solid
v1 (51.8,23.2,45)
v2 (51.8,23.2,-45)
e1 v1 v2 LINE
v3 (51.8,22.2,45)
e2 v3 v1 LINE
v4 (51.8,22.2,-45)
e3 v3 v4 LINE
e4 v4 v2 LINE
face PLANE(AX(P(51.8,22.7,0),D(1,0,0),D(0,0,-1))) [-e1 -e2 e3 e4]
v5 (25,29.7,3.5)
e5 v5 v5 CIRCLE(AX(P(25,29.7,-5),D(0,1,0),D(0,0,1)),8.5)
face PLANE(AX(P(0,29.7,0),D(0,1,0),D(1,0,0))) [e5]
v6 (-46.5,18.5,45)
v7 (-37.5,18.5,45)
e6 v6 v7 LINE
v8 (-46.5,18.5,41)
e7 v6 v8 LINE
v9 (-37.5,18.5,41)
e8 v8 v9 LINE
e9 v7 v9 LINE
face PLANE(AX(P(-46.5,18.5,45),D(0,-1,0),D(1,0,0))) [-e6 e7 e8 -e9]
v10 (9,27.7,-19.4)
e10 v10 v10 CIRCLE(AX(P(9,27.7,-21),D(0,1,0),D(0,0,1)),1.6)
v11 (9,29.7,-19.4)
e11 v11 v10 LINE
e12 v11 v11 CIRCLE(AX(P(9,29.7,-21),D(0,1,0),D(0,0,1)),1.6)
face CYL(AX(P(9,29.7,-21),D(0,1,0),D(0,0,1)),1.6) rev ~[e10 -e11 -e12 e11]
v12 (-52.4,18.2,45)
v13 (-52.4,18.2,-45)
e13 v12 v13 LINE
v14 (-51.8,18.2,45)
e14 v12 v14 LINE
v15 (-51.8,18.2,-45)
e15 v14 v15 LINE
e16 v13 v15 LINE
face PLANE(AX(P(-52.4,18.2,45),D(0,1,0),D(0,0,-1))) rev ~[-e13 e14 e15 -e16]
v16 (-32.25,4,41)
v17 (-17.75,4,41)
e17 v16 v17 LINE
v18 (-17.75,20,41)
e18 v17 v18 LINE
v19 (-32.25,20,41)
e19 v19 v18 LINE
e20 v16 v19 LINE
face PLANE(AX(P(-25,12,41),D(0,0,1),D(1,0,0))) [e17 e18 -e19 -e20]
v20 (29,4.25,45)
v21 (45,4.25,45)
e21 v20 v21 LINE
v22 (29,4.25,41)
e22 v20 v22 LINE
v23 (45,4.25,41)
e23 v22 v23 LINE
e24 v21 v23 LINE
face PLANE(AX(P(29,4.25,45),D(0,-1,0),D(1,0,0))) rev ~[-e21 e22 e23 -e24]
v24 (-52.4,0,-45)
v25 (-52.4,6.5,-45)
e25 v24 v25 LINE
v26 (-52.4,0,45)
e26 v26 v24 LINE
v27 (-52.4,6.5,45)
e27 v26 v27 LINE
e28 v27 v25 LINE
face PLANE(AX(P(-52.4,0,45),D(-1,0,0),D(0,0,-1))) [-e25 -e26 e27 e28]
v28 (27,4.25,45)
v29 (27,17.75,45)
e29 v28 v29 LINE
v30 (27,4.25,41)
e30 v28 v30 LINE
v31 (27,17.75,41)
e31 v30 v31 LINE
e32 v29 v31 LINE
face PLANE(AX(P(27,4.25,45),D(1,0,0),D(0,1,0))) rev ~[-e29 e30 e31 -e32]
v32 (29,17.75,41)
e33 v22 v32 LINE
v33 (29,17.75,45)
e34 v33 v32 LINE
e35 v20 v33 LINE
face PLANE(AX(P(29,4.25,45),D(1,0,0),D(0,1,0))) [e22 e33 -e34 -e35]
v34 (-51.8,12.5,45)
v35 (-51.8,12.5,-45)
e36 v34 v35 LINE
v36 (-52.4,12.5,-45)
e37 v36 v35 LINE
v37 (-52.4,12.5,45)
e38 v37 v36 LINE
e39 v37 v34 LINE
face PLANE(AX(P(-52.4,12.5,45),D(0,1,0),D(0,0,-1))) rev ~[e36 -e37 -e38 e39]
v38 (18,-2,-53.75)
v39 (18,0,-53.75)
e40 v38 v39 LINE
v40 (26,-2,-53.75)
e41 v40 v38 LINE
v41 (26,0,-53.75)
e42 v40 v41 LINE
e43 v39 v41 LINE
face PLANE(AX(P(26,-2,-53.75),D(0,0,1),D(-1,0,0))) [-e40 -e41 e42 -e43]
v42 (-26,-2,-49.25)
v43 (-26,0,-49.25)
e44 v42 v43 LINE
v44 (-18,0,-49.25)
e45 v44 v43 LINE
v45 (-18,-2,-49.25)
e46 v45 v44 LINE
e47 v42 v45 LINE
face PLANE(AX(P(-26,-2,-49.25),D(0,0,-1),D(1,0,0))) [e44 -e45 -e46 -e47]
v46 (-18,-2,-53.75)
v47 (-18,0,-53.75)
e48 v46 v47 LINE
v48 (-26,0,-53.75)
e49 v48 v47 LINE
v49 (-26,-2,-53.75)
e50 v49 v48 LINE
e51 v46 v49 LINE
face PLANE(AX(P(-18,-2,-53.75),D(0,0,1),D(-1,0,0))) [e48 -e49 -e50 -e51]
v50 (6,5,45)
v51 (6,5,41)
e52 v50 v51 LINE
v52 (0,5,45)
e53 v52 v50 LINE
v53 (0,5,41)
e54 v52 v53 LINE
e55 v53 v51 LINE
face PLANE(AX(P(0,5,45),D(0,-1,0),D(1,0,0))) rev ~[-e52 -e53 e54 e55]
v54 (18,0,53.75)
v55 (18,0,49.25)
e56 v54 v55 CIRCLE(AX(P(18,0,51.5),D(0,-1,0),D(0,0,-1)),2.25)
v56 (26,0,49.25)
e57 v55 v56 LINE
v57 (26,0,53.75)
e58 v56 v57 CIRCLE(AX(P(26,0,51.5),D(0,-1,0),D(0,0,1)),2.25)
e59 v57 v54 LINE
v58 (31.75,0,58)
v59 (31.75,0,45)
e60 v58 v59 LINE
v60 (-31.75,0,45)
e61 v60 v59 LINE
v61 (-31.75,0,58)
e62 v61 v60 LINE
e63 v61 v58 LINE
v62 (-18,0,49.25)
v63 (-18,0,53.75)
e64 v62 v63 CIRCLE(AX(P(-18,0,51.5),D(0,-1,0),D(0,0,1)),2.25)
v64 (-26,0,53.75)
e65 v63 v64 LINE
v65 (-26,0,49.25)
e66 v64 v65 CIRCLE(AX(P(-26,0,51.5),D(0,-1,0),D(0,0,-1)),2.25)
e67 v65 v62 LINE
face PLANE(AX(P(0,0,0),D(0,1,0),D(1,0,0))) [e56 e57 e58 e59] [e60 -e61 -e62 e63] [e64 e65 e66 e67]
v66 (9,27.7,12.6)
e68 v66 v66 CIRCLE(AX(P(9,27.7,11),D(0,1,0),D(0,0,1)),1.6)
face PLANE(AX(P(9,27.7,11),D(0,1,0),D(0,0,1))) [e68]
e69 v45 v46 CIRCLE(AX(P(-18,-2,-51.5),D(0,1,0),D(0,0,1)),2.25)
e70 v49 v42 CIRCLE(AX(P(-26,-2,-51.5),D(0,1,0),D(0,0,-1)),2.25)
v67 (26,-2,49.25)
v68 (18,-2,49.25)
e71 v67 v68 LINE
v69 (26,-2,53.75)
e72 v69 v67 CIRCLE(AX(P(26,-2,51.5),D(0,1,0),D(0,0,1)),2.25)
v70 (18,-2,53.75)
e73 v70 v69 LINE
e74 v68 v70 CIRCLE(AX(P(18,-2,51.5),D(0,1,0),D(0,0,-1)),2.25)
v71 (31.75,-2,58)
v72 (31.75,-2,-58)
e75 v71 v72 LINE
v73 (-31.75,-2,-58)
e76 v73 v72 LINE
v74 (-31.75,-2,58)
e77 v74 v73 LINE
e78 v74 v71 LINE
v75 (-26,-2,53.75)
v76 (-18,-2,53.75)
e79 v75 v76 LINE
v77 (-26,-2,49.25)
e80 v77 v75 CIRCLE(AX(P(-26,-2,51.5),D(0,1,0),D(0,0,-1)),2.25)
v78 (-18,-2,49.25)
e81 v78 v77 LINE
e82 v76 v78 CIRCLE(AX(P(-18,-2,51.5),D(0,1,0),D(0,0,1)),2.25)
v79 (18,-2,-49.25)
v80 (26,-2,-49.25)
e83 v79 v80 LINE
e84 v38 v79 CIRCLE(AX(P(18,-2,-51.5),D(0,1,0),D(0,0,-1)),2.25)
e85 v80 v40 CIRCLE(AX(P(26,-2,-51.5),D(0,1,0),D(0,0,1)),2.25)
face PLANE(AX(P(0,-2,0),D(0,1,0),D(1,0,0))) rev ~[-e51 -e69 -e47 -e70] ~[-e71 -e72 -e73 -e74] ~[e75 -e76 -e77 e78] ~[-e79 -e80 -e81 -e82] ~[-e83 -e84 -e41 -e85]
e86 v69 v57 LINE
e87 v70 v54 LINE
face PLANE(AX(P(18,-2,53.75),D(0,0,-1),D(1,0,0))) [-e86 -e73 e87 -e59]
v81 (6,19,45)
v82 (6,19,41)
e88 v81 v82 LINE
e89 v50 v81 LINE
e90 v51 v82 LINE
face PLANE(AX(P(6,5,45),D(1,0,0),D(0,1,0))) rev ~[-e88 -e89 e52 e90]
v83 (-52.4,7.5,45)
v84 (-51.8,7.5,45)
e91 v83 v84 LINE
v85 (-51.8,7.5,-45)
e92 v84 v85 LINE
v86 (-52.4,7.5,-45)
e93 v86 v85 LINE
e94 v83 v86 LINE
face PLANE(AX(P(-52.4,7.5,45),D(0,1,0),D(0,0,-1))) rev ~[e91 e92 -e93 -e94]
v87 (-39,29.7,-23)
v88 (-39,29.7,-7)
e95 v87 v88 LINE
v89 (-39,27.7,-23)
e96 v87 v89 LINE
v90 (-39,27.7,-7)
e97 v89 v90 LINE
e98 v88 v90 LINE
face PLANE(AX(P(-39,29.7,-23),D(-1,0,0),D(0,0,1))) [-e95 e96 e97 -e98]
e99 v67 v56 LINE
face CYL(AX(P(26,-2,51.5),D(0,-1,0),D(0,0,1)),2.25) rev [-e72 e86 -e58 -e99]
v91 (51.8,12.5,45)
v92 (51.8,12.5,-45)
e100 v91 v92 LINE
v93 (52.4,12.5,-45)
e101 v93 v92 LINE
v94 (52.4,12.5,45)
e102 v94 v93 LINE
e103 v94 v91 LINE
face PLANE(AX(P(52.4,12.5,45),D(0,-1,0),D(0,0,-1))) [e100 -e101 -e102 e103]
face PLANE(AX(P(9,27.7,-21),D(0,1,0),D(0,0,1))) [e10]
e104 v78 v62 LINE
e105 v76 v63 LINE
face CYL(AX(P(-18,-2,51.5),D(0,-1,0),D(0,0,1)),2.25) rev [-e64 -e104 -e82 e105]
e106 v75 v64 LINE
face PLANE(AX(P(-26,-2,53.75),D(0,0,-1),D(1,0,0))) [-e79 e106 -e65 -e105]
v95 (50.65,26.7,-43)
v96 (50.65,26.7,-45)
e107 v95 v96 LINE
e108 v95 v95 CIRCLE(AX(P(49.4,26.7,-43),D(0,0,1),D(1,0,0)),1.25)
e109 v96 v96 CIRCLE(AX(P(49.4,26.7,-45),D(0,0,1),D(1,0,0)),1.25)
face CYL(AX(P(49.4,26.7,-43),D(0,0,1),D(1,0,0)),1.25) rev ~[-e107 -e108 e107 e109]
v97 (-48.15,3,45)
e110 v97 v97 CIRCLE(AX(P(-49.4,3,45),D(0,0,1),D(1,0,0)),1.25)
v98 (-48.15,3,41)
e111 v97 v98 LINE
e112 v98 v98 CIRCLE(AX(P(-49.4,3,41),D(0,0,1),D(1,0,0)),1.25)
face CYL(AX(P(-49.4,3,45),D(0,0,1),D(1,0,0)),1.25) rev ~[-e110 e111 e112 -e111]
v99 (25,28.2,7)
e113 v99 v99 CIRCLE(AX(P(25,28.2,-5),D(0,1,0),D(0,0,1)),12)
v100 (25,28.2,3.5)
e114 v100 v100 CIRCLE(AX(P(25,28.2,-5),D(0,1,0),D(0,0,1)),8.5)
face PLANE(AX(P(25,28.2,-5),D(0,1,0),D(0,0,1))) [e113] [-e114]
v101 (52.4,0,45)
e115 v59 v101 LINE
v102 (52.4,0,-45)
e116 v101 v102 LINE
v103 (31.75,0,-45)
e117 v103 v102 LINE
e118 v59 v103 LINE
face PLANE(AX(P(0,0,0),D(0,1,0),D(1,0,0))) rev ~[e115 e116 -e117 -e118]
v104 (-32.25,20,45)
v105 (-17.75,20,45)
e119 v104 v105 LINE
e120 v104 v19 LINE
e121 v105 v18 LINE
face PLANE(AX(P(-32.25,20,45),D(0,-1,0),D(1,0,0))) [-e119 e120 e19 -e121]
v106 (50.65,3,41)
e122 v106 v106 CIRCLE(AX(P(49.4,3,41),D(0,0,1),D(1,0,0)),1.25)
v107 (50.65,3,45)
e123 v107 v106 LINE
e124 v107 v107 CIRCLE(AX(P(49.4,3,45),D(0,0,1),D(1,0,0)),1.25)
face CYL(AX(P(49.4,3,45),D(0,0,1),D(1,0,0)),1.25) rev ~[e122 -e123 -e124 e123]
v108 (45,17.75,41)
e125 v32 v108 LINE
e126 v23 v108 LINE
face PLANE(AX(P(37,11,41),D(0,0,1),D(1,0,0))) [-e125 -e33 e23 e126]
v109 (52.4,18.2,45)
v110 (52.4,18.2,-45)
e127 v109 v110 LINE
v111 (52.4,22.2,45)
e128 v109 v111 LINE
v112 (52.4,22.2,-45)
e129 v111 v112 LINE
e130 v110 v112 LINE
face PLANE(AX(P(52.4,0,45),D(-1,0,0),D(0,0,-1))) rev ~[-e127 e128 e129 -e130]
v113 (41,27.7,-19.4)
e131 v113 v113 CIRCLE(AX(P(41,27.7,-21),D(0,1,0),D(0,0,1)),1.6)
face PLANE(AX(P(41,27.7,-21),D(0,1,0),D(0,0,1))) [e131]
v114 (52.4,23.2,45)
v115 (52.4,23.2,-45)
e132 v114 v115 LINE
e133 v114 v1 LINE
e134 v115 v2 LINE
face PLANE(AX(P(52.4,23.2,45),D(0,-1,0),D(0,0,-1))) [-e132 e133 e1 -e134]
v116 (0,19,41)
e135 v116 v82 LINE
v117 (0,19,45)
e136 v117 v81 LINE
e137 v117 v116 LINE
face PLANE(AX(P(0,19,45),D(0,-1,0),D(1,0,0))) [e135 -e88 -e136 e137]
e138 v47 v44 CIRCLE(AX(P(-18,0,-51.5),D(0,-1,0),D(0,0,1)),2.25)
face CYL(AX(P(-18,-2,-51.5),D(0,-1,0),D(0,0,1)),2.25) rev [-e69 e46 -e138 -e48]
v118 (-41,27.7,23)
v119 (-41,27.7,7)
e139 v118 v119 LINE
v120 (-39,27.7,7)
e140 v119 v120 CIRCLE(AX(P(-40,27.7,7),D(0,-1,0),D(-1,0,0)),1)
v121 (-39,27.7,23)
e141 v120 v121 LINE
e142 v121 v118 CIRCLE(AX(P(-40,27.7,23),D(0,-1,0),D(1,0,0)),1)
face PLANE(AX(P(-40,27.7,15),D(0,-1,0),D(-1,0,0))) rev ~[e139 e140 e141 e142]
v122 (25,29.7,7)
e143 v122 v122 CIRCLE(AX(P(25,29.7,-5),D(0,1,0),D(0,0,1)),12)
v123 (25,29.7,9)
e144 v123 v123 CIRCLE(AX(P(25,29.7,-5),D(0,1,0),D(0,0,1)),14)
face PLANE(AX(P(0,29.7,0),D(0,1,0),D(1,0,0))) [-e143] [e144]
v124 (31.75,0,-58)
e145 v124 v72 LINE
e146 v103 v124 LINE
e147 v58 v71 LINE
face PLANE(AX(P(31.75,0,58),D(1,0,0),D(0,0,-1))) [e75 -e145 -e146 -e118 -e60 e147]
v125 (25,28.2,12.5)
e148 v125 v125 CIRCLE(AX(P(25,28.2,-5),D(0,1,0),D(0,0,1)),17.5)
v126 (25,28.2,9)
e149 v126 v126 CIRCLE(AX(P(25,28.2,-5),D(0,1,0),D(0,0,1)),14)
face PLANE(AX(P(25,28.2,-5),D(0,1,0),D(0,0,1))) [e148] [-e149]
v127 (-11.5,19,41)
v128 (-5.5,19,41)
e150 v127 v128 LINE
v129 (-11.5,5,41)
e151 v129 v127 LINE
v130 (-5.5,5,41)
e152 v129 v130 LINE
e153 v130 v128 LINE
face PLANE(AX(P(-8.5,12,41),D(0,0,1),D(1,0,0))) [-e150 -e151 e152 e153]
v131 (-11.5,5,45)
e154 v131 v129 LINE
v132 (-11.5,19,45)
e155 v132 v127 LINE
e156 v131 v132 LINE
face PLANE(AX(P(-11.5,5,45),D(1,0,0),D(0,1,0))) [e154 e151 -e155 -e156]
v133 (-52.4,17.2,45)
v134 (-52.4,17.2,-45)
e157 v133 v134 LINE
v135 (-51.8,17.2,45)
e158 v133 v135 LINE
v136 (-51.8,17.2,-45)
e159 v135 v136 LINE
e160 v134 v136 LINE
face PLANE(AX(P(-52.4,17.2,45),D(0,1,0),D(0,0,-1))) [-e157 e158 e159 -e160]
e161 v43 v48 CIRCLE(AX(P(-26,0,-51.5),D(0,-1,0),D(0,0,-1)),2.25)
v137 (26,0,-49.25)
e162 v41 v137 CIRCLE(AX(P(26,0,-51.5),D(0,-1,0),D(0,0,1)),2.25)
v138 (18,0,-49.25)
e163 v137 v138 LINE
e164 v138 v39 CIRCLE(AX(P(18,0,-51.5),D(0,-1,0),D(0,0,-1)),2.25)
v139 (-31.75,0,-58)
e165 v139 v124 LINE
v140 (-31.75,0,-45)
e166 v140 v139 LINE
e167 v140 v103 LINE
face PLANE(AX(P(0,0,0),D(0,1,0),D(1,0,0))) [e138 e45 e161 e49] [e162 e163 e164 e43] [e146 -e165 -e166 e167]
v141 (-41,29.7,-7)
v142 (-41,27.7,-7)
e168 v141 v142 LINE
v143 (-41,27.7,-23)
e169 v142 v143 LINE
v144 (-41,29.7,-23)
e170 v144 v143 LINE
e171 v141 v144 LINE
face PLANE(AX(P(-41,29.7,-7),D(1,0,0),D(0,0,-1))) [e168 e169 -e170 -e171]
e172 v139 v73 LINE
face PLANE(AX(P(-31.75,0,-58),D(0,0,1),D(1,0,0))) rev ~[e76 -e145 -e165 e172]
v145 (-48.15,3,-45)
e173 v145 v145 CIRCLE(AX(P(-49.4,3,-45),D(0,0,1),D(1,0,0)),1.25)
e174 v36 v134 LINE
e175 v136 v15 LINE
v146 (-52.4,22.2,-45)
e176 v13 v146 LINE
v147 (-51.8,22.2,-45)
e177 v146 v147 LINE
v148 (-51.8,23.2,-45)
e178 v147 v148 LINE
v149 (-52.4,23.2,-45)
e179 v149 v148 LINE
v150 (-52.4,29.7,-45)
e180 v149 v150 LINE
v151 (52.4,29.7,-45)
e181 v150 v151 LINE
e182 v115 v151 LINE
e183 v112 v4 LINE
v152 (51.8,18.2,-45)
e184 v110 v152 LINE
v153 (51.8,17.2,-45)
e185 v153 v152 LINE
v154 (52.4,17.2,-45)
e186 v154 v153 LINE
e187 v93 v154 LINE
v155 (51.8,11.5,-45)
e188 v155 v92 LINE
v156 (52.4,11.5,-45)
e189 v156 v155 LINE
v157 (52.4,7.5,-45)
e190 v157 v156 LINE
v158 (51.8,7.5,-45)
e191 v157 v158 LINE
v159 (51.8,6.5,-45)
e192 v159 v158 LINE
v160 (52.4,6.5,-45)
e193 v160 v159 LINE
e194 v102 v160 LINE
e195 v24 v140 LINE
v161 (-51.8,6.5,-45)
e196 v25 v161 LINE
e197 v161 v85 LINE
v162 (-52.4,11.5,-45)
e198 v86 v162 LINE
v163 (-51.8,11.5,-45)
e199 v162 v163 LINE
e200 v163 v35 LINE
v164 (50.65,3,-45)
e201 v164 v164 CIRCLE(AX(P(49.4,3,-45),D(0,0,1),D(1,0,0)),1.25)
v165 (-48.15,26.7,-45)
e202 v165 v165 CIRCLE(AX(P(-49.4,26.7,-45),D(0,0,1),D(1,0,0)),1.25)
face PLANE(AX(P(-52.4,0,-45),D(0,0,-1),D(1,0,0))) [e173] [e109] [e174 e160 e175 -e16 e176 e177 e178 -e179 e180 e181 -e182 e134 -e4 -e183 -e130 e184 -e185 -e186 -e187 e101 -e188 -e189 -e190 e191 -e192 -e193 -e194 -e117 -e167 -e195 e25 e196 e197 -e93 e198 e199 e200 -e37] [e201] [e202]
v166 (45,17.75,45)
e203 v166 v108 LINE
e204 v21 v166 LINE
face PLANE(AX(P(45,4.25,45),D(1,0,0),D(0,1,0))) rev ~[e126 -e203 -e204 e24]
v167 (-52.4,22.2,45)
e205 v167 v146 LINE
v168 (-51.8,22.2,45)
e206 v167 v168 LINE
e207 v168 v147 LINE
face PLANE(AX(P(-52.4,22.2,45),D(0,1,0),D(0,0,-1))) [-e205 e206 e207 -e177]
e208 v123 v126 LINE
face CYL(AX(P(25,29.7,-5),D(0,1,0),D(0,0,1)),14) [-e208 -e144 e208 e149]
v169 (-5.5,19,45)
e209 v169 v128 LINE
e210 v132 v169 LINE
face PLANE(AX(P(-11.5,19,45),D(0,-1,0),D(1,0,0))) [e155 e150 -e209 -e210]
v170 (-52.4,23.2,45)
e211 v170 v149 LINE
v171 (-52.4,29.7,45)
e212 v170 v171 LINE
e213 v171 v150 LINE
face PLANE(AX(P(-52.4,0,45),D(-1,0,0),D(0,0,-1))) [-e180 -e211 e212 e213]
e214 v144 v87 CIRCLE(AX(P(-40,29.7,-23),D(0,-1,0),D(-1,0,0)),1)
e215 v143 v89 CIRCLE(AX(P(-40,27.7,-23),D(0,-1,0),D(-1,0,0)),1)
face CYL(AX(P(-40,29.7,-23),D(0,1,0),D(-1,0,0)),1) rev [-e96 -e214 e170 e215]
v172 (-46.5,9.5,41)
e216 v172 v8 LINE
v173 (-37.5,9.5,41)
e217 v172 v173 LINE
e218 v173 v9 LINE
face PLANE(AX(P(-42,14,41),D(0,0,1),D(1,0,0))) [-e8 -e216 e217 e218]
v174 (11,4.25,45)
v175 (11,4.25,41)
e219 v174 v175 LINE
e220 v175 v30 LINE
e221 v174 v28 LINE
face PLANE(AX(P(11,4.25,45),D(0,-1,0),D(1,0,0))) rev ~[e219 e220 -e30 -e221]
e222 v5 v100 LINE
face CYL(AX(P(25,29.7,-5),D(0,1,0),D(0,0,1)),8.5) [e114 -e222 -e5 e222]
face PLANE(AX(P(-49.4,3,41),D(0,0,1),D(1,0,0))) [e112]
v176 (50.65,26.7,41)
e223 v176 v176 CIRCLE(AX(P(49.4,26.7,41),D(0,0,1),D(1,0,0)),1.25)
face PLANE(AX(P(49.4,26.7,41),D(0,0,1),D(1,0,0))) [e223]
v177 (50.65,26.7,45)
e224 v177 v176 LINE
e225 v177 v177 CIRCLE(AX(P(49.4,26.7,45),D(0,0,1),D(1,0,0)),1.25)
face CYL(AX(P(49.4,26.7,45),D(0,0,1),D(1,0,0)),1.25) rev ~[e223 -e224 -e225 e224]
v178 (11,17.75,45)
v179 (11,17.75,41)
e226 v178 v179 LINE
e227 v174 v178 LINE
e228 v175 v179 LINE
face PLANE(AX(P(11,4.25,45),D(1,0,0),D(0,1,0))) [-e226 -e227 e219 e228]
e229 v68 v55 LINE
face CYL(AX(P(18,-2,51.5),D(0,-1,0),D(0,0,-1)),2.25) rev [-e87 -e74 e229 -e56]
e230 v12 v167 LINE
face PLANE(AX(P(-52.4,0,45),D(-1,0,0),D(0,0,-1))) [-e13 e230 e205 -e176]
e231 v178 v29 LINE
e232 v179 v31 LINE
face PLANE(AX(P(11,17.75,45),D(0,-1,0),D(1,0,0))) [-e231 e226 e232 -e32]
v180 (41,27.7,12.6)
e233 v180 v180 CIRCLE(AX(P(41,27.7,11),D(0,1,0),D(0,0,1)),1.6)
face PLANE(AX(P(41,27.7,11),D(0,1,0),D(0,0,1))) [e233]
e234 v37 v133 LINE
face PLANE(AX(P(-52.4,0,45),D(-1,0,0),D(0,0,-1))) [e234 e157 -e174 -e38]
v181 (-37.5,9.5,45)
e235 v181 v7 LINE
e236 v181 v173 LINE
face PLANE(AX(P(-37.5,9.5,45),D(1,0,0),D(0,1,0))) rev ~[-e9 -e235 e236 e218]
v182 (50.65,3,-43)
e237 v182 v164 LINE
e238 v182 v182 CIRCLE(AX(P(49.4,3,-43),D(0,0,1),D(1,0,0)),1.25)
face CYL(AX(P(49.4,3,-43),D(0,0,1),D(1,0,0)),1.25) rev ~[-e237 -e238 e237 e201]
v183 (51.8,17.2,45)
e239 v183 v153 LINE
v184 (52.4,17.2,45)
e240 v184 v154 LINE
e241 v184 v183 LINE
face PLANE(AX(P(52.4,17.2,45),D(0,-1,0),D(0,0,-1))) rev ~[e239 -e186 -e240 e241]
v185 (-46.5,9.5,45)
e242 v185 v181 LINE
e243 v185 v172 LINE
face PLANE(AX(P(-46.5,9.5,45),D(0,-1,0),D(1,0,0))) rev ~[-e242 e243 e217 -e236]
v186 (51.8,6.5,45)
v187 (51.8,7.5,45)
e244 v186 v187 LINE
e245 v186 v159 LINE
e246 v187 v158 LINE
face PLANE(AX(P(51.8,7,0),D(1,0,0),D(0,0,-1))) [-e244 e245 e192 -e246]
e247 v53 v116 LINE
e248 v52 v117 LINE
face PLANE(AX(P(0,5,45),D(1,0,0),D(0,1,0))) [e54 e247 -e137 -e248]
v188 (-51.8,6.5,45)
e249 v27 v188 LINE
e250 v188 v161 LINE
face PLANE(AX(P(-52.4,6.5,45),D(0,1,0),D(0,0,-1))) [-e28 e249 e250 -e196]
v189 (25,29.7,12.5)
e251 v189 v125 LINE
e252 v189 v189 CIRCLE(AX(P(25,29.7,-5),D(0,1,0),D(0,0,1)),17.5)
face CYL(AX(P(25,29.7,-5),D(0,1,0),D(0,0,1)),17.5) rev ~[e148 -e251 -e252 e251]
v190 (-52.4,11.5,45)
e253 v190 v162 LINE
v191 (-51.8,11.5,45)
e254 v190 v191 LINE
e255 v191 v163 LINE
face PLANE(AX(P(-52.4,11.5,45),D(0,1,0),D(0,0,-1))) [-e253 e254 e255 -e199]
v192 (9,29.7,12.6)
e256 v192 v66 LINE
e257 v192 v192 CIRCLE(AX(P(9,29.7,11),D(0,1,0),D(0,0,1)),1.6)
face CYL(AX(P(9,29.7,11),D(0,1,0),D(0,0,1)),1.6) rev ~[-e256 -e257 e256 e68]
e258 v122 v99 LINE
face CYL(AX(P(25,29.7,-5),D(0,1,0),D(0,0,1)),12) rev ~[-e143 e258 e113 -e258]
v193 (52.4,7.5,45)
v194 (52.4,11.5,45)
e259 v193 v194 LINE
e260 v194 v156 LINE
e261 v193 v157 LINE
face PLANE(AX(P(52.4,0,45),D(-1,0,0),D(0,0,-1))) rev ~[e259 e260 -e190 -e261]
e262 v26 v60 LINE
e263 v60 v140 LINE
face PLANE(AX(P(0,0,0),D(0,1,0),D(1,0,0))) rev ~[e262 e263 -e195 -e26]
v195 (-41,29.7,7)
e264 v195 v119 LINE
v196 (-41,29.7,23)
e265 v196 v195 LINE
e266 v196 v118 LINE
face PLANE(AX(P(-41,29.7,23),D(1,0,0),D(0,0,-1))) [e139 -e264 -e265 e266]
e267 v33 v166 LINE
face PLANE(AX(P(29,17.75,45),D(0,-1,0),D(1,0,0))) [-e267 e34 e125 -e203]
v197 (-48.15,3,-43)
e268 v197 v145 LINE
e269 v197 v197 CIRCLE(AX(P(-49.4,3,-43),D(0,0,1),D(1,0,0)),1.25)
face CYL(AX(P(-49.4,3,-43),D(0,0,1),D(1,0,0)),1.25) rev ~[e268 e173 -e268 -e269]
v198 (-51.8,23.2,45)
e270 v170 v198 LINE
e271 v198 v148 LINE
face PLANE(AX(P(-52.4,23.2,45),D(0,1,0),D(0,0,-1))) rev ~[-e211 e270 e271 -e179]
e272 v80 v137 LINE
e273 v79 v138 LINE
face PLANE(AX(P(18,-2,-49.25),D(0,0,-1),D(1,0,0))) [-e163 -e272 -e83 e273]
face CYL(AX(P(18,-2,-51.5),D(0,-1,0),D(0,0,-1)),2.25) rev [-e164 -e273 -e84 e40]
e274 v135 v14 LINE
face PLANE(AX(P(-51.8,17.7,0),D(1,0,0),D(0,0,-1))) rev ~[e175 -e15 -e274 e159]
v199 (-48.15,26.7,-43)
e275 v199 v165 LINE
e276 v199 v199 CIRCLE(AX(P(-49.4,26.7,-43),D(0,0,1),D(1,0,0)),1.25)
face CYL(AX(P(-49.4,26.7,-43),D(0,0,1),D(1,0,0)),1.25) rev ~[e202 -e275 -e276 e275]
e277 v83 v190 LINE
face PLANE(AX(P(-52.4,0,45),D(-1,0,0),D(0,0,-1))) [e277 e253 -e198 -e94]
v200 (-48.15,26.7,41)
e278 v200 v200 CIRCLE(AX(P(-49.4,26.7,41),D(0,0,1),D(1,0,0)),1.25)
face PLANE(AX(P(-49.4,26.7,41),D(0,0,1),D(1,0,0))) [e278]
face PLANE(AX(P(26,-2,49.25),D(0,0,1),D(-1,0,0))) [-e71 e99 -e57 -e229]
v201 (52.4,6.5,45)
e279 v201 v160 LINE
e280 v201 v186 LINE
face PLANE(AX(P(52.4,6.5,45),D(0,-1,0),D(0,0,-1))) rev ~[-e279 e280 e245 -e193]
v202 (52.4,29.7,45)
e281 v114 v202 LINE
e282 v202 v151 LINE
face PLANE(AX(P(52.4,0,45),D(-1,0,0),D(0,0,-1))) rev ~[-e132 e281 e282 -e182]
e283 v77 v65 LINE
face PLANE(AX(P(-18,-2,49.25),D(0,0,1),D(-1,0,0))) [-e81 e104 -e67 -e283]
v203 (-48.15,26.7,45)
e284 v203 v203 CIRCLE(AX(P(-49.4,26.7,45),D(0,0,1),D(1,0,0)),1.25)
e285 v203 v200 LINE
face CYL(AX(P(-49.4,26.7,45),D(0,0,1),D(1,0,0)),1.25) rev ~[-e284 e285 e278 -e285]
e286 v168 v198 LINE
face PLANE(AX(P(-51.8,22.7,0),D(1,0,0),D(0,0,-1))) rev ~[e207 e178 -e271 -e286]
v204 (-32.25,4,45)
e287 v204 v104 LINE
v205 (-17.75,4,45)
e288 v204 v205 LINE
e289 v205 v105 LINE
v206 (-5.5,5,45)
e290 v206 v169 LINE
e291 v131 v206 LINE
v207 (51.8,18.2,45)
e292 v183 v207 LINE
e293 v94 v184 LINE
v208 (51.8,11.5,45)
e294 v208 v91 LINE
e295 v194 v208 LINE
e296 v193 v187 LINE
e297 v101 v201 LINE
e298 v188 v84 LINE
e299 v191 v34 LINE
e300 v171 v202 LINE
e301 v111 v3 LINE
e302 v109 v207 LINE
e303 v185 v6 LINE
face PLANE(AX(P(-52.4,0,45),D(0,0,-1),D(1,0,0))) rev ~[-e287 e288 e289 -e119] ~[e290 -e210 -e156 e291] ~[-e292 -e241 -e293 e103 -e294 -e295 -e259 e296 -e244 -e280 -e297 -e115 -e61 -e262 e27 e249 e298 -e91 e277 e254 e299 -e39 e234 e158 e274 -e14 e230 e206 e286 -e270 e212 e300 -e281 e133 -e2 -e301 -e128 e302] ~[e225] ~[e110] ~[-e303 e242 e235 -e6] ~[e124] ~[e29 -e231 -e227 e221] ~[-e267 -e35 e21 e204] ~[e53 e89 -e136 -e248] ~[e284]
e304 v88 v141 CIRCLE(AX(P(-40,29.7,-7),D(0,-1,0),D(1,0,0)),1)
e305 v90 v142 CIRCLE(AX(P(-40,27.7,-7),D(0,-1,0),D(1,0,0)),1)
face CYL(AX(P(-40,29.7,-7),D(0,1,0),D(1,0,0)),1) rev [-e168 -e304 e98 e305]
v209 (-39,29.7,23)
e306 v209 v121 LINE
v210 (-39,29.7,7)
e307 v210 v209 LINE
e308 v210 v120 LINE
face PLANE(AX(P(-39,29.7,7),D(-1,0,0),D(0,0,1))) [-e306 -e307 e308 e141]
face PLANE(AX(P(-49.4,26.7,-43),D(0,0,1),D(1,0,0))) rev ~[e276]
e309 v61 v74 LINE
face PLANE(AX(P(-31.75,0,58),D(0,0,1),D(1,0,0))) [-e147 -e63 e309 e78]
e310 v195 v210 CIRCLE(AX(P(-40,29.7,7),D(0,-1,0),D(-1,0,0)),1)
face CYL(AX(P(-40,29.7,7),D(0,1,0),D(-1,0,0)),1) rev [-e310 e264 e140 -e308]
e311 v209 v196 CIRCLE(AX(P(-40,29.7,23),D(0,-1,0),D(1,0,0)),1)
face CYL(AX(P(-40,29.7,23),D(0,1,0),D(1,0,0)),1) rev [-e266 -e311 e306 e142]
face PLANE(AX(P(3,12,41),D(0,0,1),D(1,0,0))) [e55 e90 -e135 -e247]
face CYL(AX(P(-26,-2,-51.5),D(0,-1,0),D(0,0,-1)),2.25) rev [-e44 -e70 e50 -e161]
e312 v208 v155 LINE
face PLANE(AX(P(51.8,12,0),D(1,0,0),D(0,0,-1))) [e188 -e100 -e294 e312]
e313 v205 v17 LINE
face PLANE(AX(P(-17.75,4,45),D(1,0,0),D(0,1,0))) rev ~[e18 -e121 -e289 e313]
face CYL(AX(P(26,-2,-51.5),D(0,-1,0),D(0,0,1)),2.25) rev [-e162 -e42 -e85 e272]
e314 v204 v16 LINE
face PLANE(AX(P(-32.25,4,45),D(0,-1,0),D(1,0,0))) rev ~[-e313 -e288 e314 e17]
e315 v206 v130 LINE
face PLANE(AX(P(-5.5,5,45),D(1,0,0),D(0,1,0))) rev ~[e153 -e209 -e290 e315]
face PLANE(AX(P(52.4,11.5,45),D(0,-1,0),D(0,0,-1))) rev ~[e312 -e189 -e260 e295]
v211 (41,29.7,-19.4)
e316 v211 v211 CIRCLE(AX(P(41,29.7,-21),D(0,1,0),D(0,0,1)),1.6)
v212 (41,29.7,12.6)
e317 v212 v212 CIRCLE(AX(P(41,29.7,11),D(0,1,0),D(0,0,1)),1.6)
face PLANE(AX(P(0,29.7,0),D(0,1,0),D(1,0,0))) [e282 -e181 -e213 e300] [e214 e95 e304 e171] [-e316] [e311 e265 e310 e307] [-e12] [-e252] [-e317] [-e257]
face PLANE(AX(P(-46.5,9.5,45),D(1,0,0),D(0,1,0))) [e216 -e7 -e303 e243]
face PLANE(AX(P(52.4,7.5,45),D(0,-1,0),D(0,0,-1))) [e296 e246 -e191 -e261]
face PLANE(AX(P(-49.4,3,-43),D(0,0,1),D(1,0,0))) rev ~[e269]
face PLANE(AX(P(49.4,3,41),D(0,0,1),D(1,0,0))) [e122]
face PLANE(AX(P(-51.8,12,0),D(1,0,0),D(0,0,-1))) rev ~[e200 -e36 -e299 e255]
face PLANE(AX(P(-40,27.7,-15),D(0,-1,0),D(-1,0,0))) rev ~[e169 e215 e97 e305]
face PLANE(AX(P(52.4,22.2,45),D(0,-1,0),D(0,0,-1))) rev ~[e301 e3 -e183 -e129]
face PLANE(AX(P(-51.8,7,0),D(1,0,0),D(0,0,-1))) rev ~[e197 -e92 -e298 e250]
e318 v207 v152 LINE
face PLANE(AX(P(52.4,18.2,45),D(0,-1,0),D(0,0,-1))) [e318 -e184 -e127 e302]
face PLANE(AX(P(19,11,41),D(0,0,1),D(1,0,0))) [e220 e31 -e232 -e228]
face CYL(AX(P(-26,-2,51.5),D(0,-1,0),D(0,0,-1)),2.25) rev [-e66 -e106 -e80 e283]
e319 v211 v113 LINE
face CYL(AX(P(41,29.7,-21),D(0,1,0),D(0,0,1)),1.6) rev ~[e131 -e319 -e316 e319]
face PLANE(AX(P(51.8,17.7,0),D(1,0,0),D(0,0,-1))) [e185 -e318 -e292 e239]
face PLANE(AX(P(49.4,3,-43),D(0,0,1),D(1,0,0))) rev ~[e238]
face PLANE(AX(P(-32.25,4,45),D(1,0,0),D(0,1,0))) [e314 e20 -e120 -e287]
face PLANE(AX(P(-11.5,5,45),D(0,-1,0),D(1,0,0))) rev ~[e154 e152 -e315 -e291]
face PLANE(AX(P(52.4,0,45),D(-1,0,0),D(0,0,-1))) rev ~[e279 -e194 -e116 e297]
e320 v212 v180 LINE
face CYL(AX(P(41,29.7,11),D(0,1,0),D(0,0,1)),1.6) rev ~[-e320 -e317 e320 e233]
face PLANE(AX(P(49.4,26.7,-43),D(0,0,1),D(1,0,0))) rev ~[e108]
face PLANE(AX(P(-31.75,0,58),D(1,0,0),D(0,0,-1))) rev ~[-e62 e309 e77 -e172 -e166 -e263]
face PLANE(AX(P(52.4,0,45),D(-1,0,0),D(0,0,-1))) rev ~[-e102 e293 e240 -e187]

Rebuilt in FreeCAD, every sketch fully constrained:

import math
import FreeCAD as App
import Part
import Sketcher
Q = App.Units.Quantity


def add_polygon(sketch, points):
    """Adds a closed chain of lines whose ends are joined by coincident constraints."""
    first, n = sketch.GeometryCount, len(points)
    for a, b in zip(points, points[1:] + points[:1]):
        sketch.addGeometry(Part.LineSegment(App.Vector(*a, 0), App.Vector(*b, 0)), False)
    for i in range(n):
        sketch.addConstraint(Sketcher.Constraint("Coincident", first + i, 2, first + (i + 1) % n, 1))

doc = App.newDocument("Part")
params = doc.addObject("Spreadsheet::Sheet", "Params")
for row, (alias, value) in enumerate([
    ("sketch1_height", "90 mm"),
    ("sketch1_width", "104.8 mm"),
    ("pad1_length", "29.7 mm"),
    ("sketch2_height", "116 mm"),
    ("sketch2_width", "63.5 mm"),
    ("pad2_length", "2 mm"),
    ("sketch3_width", "8 mm"),
    ("sketch3_radius", "2.25 mm"),
    ("pocket1_length", "3 mm"),
    ("sketch4_diameter", "2.5 mm"),
    ("sketch4_width", "9 mm"),
    ("sketch4_width2", "6 mm"),
    ("sketch4_width3", "16 mm"),
    ("sketch4_height", "14 mm"),
    ("pocket2_length", "4 mm"),
    ("sketch5_diameter", "2.5 mm"),
    ("pocket3_length", "2 mm"),
    ("sketch6_diameter", "35 mm"),
    ("sketch6_diameter2", "28 mm"),
    ("pocket4_length", "1.5 mm"),
    ("sketch7_diameter", "24 mm"),
    ("sketch7_diameter2", "17 mm"),
    ("pocket5_length", "1.5 mm"),
    ("sketch8_radius", "1 mm"),
    ("sketch8_diameter", "3.2 mm"),
    ("sketch8_height", "16 mm"),
    ("pocket6_length", "2 mm"),
    ("sketch9_width", "1 mm"),
    ("sketch9_height", "90 mm"),
    ("pocket7_length", "0.6 mm"),
    ("sketch10_width", "1 mm"),
    ("sketch10_height", "90 mm"),
    ("pocket8_length", "0.6 mm"),
], start=1):
    params.set(f"A{row}", alias)
    params.set(f"B{row}", "=" + value)
    params.setAlias(f"B{row}", alias)

body = doc.addObject("PartDesign::Body", "Body")

# Sketch on XZ plane
sketch1 = doc.addObject("Sketcher::SketchObject", "Sketch")
body.addObject(sketch1)
sketch1.AttachmentSupport = (doc.XZ_Plane, [""])
sketch1.MapMode = "FlatFace"
add_polygon(sketch1, [(-52, -45), (-52, 45), (52, 45), (52, -45)])  # lines 0-3
sketch1.addConstraint([
    Sketcher.Constraint("Vertical", 0),
    Sketcher.Constraint("Horizontal", 1),
    Sketcher.Constraint("Vertical", 2),
    Sketcher.Constraint("Horizontal", 3),
    Sketcher.Constraint("Symmetric", 0, 2, 2, 2, -1, 1),
    Sketcher.Constraint("DistanceY", 0, 1, 0, 2, Q("90 mm")),
    Sketcher.Constraint("DistanceX", 1, 1, 1, 2, Q("104.8 mm")),
])
sketch1.setExpression("Constraints[9]", "Params.sketch1_height")
sketch1.setExpression("Constraints[10]", "Params.sketch1_width")
pad1 = doc.addObject("PartDesign::Pad", "Pad")
body.addObject(pad1)
pad1.Profile = sketch1
pad1.setExpression("Length", "Params.pad1_length")
pad1.Reversed = True

# Sketch on XZ plane
sketch2 = doc.addObject("Sketcher::SketchObject", "Sketch001")
body.addObject(sketch2)
sketch2.AttachmentSupport = (doc.XZ_Plane, [""])
sketch2.MapMode = "FlatFace"
add_polygon(sketch2, [(-32, -58), (-32, 58), (32, 58), (32, -58)])  # lines 0-3
sketch2.addConstraint([
    Sketcher.Constraint("Vertical", 0),
    Sketcher.Constraint("Horizontal", 1),
    Sketcher.Constraint("Vertical", 2),
    Sketcher.Constraint("Horizontal", 3),
    Sketcher.Constraint("Symmetric", 0, 2, 2, 2, -1, 1),
    Sketcher.Constraint("DistanceY", 0, 1, 0, 2, Q("116 mm")),
    Sketcher.Constraint("DistanceX", 1, 1, 1, 2, Q("63.5 mm")),
])
sketch2.setExpression("Constraints[9]", "Params.sketch2_height")
sketch2.setExpression("Constraints[10]", "Params.sketch2_width")
pad2 = doc.addObject("PartDesign::Pad", "Pad001")
body.addObject(pad2)
pad2.Profile = sketch2
pad2.setExpression("Length", "Params.pad2_length")

# Sketch on XZ plane
sketch3 = doc.addObject("Sketcher::SketchObject", "Sketch002")
body.addObject(sketch3)
sketch3.AttachmentSupport = (doc.XZ_Plane, [""])
sketch3.MapMode = "FlatFace"
sketch3.AttachmentOffset = App.Placement(App.Vector(0, 0, 2), App.Rotation())
sketch3.addGeometry([
    Part.LineSegment(App.Vector(26, 53.8, 0), App.Vector(18, 53.8, 0)),  # 0
    Part.ArcOfCircle(Part.Circle(App.Vector(18, 51.5, 0), App.Vector(0, 0, 1), 2.2), math.radians(90), math.radians(270)),  # 1
    Part.LineSegment(App.Vector(18, 49.2, 0), App.Vector(26, 49.2, 0)),  # 2
    Part.ArcOfCircle(Part.Circle(App.Vector(26, 51.5, 0), App.Vector(0, 0, 1), 2.2), math.radians(-90), math.radians(90)),  # 3
    Part.LineSegment(App.Vector(-18, 53.8, 0), App.Vector(-26, 53.8, 0)),  # 4
    Part.ArcOfCircle(Part.Circle(App.Vector(-26, 51.5, 0), App.Vector(0, 0, 1), 2.2), math.radians(90), math.radians(270)),  # 5
    Part.LineSegment(App.Vector(-26, 49.2, 0), App.Vector(-18, 49.2, 0)),  # 6
    Part.ArcOfCircle(Part.Circle(App.Vector(-18, 51.5, 0), App.Vector(0, 0, 1), 2.2), math.radians(-90), math.radians(90)),  # 7
    Part.LineSegment(App.Vector(26, -49.2, 0), App.Vector(18, -49.2, 0)),  # 8
    Part.ArcOfCircle(Part.Circle(App.Vector(18, -51.5, 0), App.Vector(0, 0, 1), 2.2), math.radians(90), math.radians(270)),  # 9
    Part.LineSegment(App.Vector(18, -53.8, 0), App.Vector(26, -53.8, 0)),  # 10
    Part.ArcOfCircle(Part.Circle(App.Vector(26, -51.5, 0), App.Vector(0, 0, 1), 2.2), math.radians(-90), math.radians(90)),  # 11
    Part.LineSegment(App.Vector(-18, -49.2, 0), App.Vector(-26, -49.2, 0)),  # 12
    Part.ArcOfCircle(Part.Circle(App.Vector(-26, -51.5, 0), App.Vector(0, 0, 1), 2.2), math.radians(90), math.radians(270)),  # 13
    Part.LineSegment(App.Vector(-26, -53.8, 0), App.Vector(-18, -53.8, 0)),  # 14
    Part.ArcOfCircle(Part.Circle(App.Vector(-18, -51.5, 0), App.Vector(0, 0, 1), 2.2), math.radians(-90), math.radians(90)),  # 15
], False)
sketch3.addConstraint([
    Sketcher.Constraint("Tangent", 0, 2, 1, 1),
    Sketcher.Constraint("Tangent", 1, 2, 2, 1),
    Sketcher.Constraint("Tangent", 2, 2, 3, 1),
    Sketcher.Constraint("Tangent", 3, 2, 0, 1),
    Sketcher.Constraint("Tangent", 4, 2, 5, 1),
    Sketcher.Constraint("Tangent", 5, 2, 6, 1),
    Sketcher.Constraint("Tangent", 6, 2, 7, 1),
    Sketcher.Constraint("Tangent", 7, 2, 4, 1),
    Sketcher.Constraint("Tangent", 8, 2, 9, 1),
    Sketcher.Constraint("Tangent", 9, 2, 10, 1),
    Sketcher.Constraint("Tangent", 10, 2, 11, 1),
    Sketcher.Constraint("Tangent", 11, 2, 8, 1),
    Sketcher.Constraint("Tangent", 12, 2, 13, 1),
    Sketcher.Constraint("Tangent", 13, 2, 14, 1),
    Sketcher.Constraint("Tangent", 14, 2, 15, 1),
    Sketcher.Constraint("Tangent", 15, 2, 12, 1),
    Sketcher.Constraint("Horizontal", 0),
    Sketcher.Constraint("Horizontal", 2),
    Sketcher.Constraint("Horizontal", 4),
    Sketcher.Constraint("Horizontal", 6),
    Sketcher.Constraint("Horizontal", 8),
    Sketcher.Constraint("Horizontal", 10),
    Sketcher.Constraint("Horizontal", 12),
    Sketcher.Constraint("Horizontal", 14),
    Sketcher.Constraint("Equal", 3, 5),
    Sketcher.Constraint("Equal", 7, 9),
    Sketcher.Constraint("Equal", 11, 13),
    Sketcher.Constraint("Symmetric", 7, 3, 9, 3, -1, 1),
    Sketcher.Constraint("Symmetric", 3, 3, 13, 3, -1, 1),
    Sketcher.Constraint("Symmetric", 3, 3, 5, 3, -2),
    Sketcher.Constraint("Vertical", 1, 3, 9, 3),
    Sketcher.Constraint("Vertical", 3, 3, 11, 3),
    Sketcher.Constraint("Vertical", 7, 3, 15, 3),
    Sketcher.Constraint("DistanceX", 0, 2, 0, 1, Q("8 mm")),
    Sketcher.Constraint("Radius", 1, Q("2.25 mm")),
    Sketcher.Constraint("DistanceX", -1, 1, 1, 3, Q("18 mm")),
    Sketcher.Constraint("DistanceY", 9, 3, 1, 3, Q("103 mm")),
])
sketch3.setExpression("Constraints[33]", "Params.sketch3_width")
sketch3.setExpression("Constraints[34]", "Params.sketch3_radius")
pocket1 = doc.addObject("PartDesign::Pocket", "Pocket")
body.addObject(pocket1)
pocket1.Profile = sketch3
pocket1.setExpression("Length", "Params.pocket1_length")

# Sketch on XY plane
sketch4 = doc.addObject("Sketcher::SketchObject", "Sketch003")
body.addObject(sketch4)
sketch4.AttachmentSupport = (doc.XY_Plane, [""])
sketch4.MapMode = "FlatFace"
sketch4.AttachmentOffset = App.Placement(App.Vector(0, 0, 45), App.Rotation())
sketch4.addGeometry(Part.Circle(App.Vector(49.4, 3, 0), App.Vector(0, 0, 1), 1.2), False)  # 0
sketch4.addGeometry(Part.Circle(App.Vector(49.4, 26.7, 0), App.Vector(0, 0, 1), 1.2), False)  # 1
sketch4.addGeometry(Part.Circle(App.Vector(-49.4, 3, 0), App.Vector(0, 0, 1), 1.2), False)  # 2
sketch4.addGeometry(Part.Circle(App.Vector(-49.4, 26.7, 0), App.Vector(0, 0, 1), 1.2), False)  # 3
add_polygon(sketch4, [(-46.5, 18.5), (-46.5, 9.5), (-37.5, 9.5), (-37.5, 18.5)])  # lines 4-7
add_polygon(sketch4, [(-32.2, 20), (-32.2, 4), (-17.8, 4), (-17.8, 20)])  # lines 8-11
add_polygon(sketch4, [(-11.5, 19), (-11.5, 5), (-5.5, 5), (-5.5, 19)])  # lines 12-15
add_polygon(sketch4, [(0, 19), (0, 5), (6, 5), (6, 19)])  # lines 16-19
add_polygon(sketch4, [(11, 17.8), (11, 4.2), (27, 4.2), (27, 17.8)])  # lines 20-23
add_polygon(sketch4, [(29, 17.8), (29, 4.2), (45, 4.2), (45, 17.8)])  # lines 24-27
sketch4.addConstraint([
    Sketcher.Constraint("Vertical", 4),
    Sketcher.Constraint("Horizontal", 5),
    Sketcher.Constraint("Vertical", 6),
    Sketcher.Constraint("Horizontal", 7),
    Sketcher.Constraint("Vertical", 8),
    Sketcher.Constraint("Horizontal", 9),
    Sketcher.Constraint("Vertical", 10),
    Sketcher.Constraint("Horizontal", 11),
    Sketcher.Constraint("Vertical", 12),
    Sketcher.Constraint("Horizontal", 13),
    Sketcher.Constraint("Vertical", 14),
    Sketcher.Constraint("Horizontal", 15),
    Sketcher.Constraint("Vertical", 16),
    Sketcher.Constraint("Horizontal", 17),
    Sketcher.Constraint("Vertical", 18),
    Sketcher.Constraint("Horizontal", 19),
    Sketcher.Constraint("Vertical", 20),
    Sketcher.Constraint("Horizontal", 21),
    Sketcher.Constraint("Vertical", 22),
    Sketcher.Constraint("Horizontal", 23),
    Sketcher.Constraint("Vertical", 24),
    Sketcher.Constraint("Horizontal", 25),
    Sketcher.Constraint("Vertical", 26),
    Sketcher.Constraint("Horizontal", 27),
    Sketcher.Constraint("Equal", 0, 1),
    Sketcher.Constraint("Equal", 1, 2),
    Sketcher.Constraint("Equal", 2, 3),
    Sketcher.Constraint("Symmetric", 0, 3, 2, 3, -2),
    Sketcher.Constraint("Symmetric", 1, 3, 3, 3, -2),
    Sketcher.Constraint("PointOnObject", 16, 2, -2),
    Sketcher.Constraint("Horizontal", 13, 2, 16, 2),
    Sketcher.Constraint("Horizontal", 15, 2, 18, 2),
    Sketcher.Constraint("Horizontal", 21, 2, 24, 2),
    Sketcher.Constraint("Horizontal", 23, 2, 26, 2),
    Sketcher.Constraint("Vertical", 0, 3, 1, 3),
    Sketcher.Constraint("Equal", 15, 17),
    Sketcher.Constraint("Equal", 23, 25),
    Sketcher.Constraint("Equal", 7, 4),
    Sketcher.Constraint("Equal", 27, 8),
    Sketcher.Constraint("Diameter", 0, Q("2.5 mm")),
    Sketcher.Constraint("DistanceX", 5, 1, 5, 2, Q("9 mm")),
    Sketcher.Constraint("DistanceX", 13, 1, 13, 2, Q("6 mm")),
    Sketcher.Constraint("DistanceX", 21, 1, 21, 2, Q("16 mm")),
    Sketcher.Constraint("DistanceY", 12, 2, 12, 1, Q("14 mm")),
    Sketcher.Constraint("DistanceX", 9, 1, 9, 2, Q("14.5 mm")),
    Sketcher.Constraint("DistanceY", 20, 2, 20, 1, Q("13.5 mm")),
    Sketcher.Constraint("DistanceY", -1, 1, 0, 3, Q("3 mm")),
    Sketcher.Constraint("DistanceY", -1, 1, 8, 2, Q("4 mm")),
    Sketcher.Constraint("DistanceY", -1, 1, 12, 2, Q("5 mm")),
    Sketcher.Constraint("DistanceX", -1, 1, 20, 2, Q("11 mm")),
    Sketcher.Constraint("DistanceX", -1, 1, 24, 2, Q("29 mm")),
    Sketcher.Constraint("DistanceX", 5, 2, 12, 2, Q("26 mm")),
    Sketcher.Constraint("DistanceX", -1, 1, 0, 3, Q("49.4 mm")),
    Sketcher.Constraint("DistanceY", -1, 1, 1, 3, Q("26.7 mm")),
    Sketcher.Constraint("DistanceX", 4, 2, -1, 1, Q("46.5 mm")),
    Sketcher.Constraint("DistanceY", -1, 1, 4, 2, Q("9.5 mm")),
    Sketcher.Constraint("DistanceX", 8, 2, -1, 1, Q("32.25 mm")),
    Sketcher.Constraint("DistanceY", -1, 1, 20, 2, Q("4.25 mm")),
])
sketch4.setExpression("Constraints[63]", "Params.sketch4_diameter")
sketch4.setExpression("Constraints[64]", "Params.sketch4_width")
sketch4.setExpression("Constraints[65]", "Params.sketch4_width2")
sketch4.setExpression("Constraints[66]", "Params.sketch4_width3")
sketch4.setExpression("Constraints[67]", "Params.sketch4_height")
pocket2 = doc.addObject("PartDesign::Pocket", "Pocket001")
body.addObject(pocket2)
pocket2.Profile = sketch4
pocket2.setExpression("Length", "Params.pocket2_length")

# Sketch on XY plane
sketch5 = doc.addObject("Sketcher::SketchObject", "Sketch004")
body.addObject(sketch5)
sketch5.AttachmentSupport = (doc.XY_Plane, [""])
sketch5.MapMode = "FlatFace"
sketch5.AttachmentOffset = App.Placement(App.Vector(0, 0, -43), App.Rotation())
sketch5.addGeometry([
    Part.Circle(App.Vector(49.4, 3, 0), App.Vector(0, 0, 1), 1.2),
    Part.Circle(App.Vector(49.4, 26.7, 0), App.Vector(0, 0, 1), 1.2),
    Part.Circle(App.Vector(-49.4, 3, 0), App.Vector(0, 0, 1), 1.2),
    Part.Circle(App.Vector(-49.4, 26.7, 0), App.Vector(0, 0, 1), 1.2),
], False)
sketch5.addConstraint([
    Sketcher.Constraint("Equal", 0, 1),
    Sketcher.Constraint("Equal", 1, 2),
    Sketcher.Constraint("Equal", 2, 3),
    Sketcher.Constraint("Symmetric", 0, 3, 2, 3, -2),
    Sketcher.Constraint("Symmetric", 1, 3, 3, 3, -2),
    Sketcher.Constraint("Vertical", 0, 3, 1, 3),
    Sketcher.Constraint("Diameter", 0, Q("2.5 mm")),
    Sketcher.Constraint("DistanceY", -1, 1, 0, 3, Q("3 mm")),
    Sketcher.Constraint("DistanceX", -1, 1, 0, 3, Q("49.4 mm")),
    Sketcher.Constraint("DistanceY", -1, 1, 1, 3, Q("26.7 mm")),
])
sketch5.setExpression("Constraints[6]", "Params.sketch5_diameter")
pocket3 = doc.addObject("PartDesign::Pocket", "Pocket002")
body.addObject(pocket3)
pocket3.Profile = sketch5
pocket3.setExpression("Length", "Params.pocket3_length")

# Sketch on XZ plane
sketch6 = doc.addObject("Sketcher::SketchObject", "Sketch005")
body.addObject(sketch6)
sketch6.AttachmentSupport = (doc.XZ_Plane, [""])
sketch6.MapMode = "FlatFace"
sketch6.AttachmentOffset = App.Placement(App.Vector(0, 0, -29.7), App.Rotation())
sketch6.addGeometry([
    Part.Circle(App.Vector(25, -5, 0), App.Vector(0, 0, 1), 18),
    Part.Circle(App.Vector(25, -5, 0), App.Vector(0, 0, 1), 14),
], False)
sketch6.addConstraint([
    Sketcher.Constraint("Coincident", 1, 3, 0, 3),
    Sketcher.Constraint("Diameter", 0, Q("35 mm")),
    Sketcher.Constraint("Diameter", 1, Q("28 mm")),
    Sketcher.Constraint("DistanceX", -1, 1, 0, 3, Q("25 mm")),
    Sketcher.Constraint("DistanceY", 0, 3, -1, 1, Q("5 mm")),
])
sketch6.setExpression("Constraints[1]", "Params.sketch6_diameter")
sketch6.setExpression("Constraints[2]", "Params.sketch6_diameter2")
pocket4 = doc.addObject("PartDesign::Pocket", "Pocket003")
body.addObject(pocket4)
pocket4.Profile = sketch6
pocket4.setExpression("Length", "Params.pocket4_length")
pocket4.Reversed = True

# Sketch on XZ plane
sketch7 = doc.addObject("Sketcher::SketchObject", "Sketch006")
body.addObject(sketch7)
sketch7.AttachmentSupport = (doc.XZ_Plane, [""])
sketch7.MapMode = "FlatFace"
sketch7.AttachmentOffset = App.Placement(App.Vector(0, 0, -29.7), App.Rotation())
sketch7.addGeometry([
    Part.Circle(App.Vector(25, -5, 0), App.Vector(0, 0, 1), 12),
    Part.Circle(App.Vector(25, -5, 0), App.Vector(0, 0, 1), 8),
], False)
sketch7.addConstraint([
    Sketcher.Constraint("Coincident", 1, 3, 0, 3),
    Sketcher.Constraint("Diameter", 0, Q("24 mm")),
    Sketcher.Constraint("Diameter", 1, Q("17 mm")),
    Sketcher.Constraint("DistanceX", -1, 1, 0, 3, Q("25 mm")),
    Sketcher.Constraint("DistanceY", 0, 3, -1, 1, Q("5 mm")),
])
sketch7.setExpression("Constraints[1]", "Params.sketch7_diameter")
sketch7.setExpression("Constraints[2]", "Params.sketch7_diameter2")
pocket5 = doc.addObject("PartDesign::Pocket", "Pocket004")
body.addObject(pocket5)
pocket5.Profile = sketch7
pocket5.setExpression("Length", "Params.pocket5_length")
pocket5.Reversed = True

# Sketch on XZ plane
sketch8 = doc.addObject("Sketcher::SketchObject", "Sketch007")
body.addObject(sketch8)
sketch8.AttachmentSupport = (doc.XZ_Plane, [""])
sketch8.MapMode = "FlatFace"
sketch8.AttachmentOffset = App.Placement(App.Vector(0, 0, -29.7), App.Rotation())
sketch8.addGeometry([
    Part.Circle(App.Vector(41, 11, 0), App.Vector(0, 0, 1), 1.6),  # 0
    Part.Circle(App.Vector(41, -21, 0), App.Vector(0, 0, 1), 1.6),  # 1
    Part.Circle(App.Vector(9, 11, 0), App.Vector(0, 0, 1), 1.6),  # 2
    Part.Circle(App.Vector(9, -21, 0), App.Vector(0, 0, 1), 1.6),  # 3
    Part.LineSegment(App.Vector(-39, 23, 0), App.Vector(-39, 7, 0)),  # 4
    Part.ArcOfCircle(Part.Circle(App.Vector(-40, 7, 0), App.Vector(0, 0, 1), 1), math.radians(180), math.radians(360)),  # 5
    Part.LineSegment(App.Vector(-41, 7, 0), App.Vector(-41, 23, 0)),  # 6
    Part.ArcOfCircle(Part.Circle(App.Vector(-40, 23, 0), App.Vector(0, 0, 1), 1), math.radians(0), math.radians(180)),  # 7
    Part.LineSegment(App.Vector(-39, -7, 0), App.Vector(-39, -23, 0)),  # 8
    Part.ArcOfCircle(Part.Circle(App.Vector(-40, -23, 0), App.Vector(0, 0, 1), 1), math.radians(180), math.radians(360)),  # 9
    Part.LineSegment(App.Vector(-41, -23, 0), App.Vector(-41, -7, 0)),  # 10
    Part.ArcOfCircle(Part.Circle(App.Vector(-40, -7, 0), App.Vector(0, 0, 1), 1), math.radians(0), math.radians(180)),  # 11
], False)
sketch8.addConstraint([
    Sketcher.Constraint("Tangent", 4, 2, 5, 2),
    Sketcher.Constraint("Tangent", 5, 1, 6, 1),
    Sketcher.Constraint("Tangent", 6, 2, 7, 2),
    Sketcher.Constraint("Tangent", 7, 1, 4, 1),
    Sketcher.Constraint("Tangent", 8, 2, 9, 2),
    Sketcher.Constraint("Tangent", 9, 1, 10, 1),
    Sketcher.Constraint("Tangent", 10, 2, 11, 2),
    Sketcher.Constraint("Tangent", 11, 1, 8, 1),
    Sketcher.Constraint("Vertical", 4),
    Sketcher.Constraint("Vertical", 6),
    Sketcher.Constraint("Vertical", 8),
    Sketcher.Constraint("Vertical", 10),
    Sketcher.Constraint("Equal", 0, 1),
    Sketcher.Constraint("Equal", 1, 2),
    Sketcher.Constraint("Equal", 2, 3),
    Sketcher.Constraint("Equal", 7, 9),
    Sketcher.Constraint("Symmetric", 7, 3, 9, 3, -1),
    Sketcher.Constraint("Horizontal", 0, 3, 2, 3),
    Sketcher.Constraint("Horizontal", 1, 3, 3, 3),
    Sketcher.Constraint("Vertical", 0, 3, 1, 3),
    Sketcher.Constraint("Vertical", 2, 3, 3, 3),
    Sketcher.Constraint("Equal", 6, 8),
    Sketcher.Constraint("Radius", 5, Q("1 mm")),
    Sketcher.Constraint("Diameter", 0, Q("3.2 mm")),
    Sketcher.Constraint("DistanceY", 4, 2, 4, 1, Q("16 mm")),
    Sketcher.Constraint("DistanceX", -1, 1, 0, 3, Q("41 mm")),
    Sketcher.Constraint("DistanceY", -1, 1, 0, 3, Q("11 mm")),
    Sketcher.Constraint("DistanceY", 1, 3, -1, 1, Q("21 mm")),
    Sketcher.Constraint("DistanceX", -1, 1, 2, 3, Q("9 mm")),
    Sketcher.Constraint("DistanceX", 5, 3, -1, 1, Q("40 mm")),
    Sketcher.Constraint("DistanceY", -1, 1, 5, 3, Q("7 mm")),
])
sketch8.setExpression("Constraints[22]", "Params.sketch8_radius")
sketch8.setExpression("Constraints[23]", "Params.sketch8_diameter")
sketch8.setExpression("Constraints[24]", "Params.sketch8_height")
pocket6 = doc.addObject("PartDesign::Pocket", "Pocket005")
body.addObject(pocket6)
pocket6.Profile = sketch8
pocket6.setExpression("Length", "Params.pocket6_length")
pocket6.Reversed = True

# Sketch on YZ plane
sketch9 = doc.addObject("Sketcher::SketchObject", "Sketch008")
body.addObject(sketch9)
sketch9.AttachmentSupport = (doc.YZ_Plane, [""])
sketch9.MapMode = "FlatFace"
sketch9.AttachmentOffset = App.Placement(App.Vector(0, 0, 52.4), App.Rotation())
add_polygon(sketch9, [(7.5, 45), (6.5, 45), (6.5, -45), (7.5, -45)])  # lines 0-3
add_polygon(sketch9, [(12.5, 45), (11.5, 45), (11.5, -45), (12.5, -45)])  # lines 4-7
add_polygon(sketch9, [(18.2, 45), (17.2, 45), (17.2, -45), (18.2, -45)])  # lines 8-11
add_polygon(sketch9, [(23.2, 45), (22.2, 45), (22.2, -45), (23.2, -45)])  # lines 12-15
sketch9.addConstraint([
    Sketcher.Constraint("Horizontal", 0),
    Sketcher.Constraint("Vertical", 1),
    Sketcher.Constraint("Horizontal", 2),
    Sketcher.Constraint("Vertical", 3),
    Sketcher.Constraint("Horizontal", 4),
    Sketcher.Constraint("Vertical", 5),
    Sketcher.Constraint("Horizontal", 6),
    Sketcher.Constraint("Vertical", 7),
    Sketcher.Constraint("Horizontal", 8),
    Sketcher.Constraint("Vertical", 9),
    Sketcher.Constraint("Horizontal", 10),
    Sketcher.Constraint("Vertical", 11),
    Sketcher.Constraint("Horizontal", 12),
    Sketcher.Constraint("Vertical", 13),
    Sketcher.Constraint("Horizontal", 14),
    Sketcher.Constraint("Vertical", 15),
    Sketcher.Constraint("Horizontal", 3, 2, 4, 2),
    Sketcher.Constraint("Horizontal", 2, 2, 5, 2),
    Sketcher.Constraint("Horizontal", 7, 2, 8, 2),
    Sketcher.Constraint("Horizontal", 6, 2, 9, 2),
    Sketcher.Constraint("Horizontal", 11, 2, 12, 2),
    Sketcher.Constraint("Horizontal", 10, 2, 13, 2),
    Sketcher.Constraint("Equal", 2, 4),
    Sketcher.Constraint("Equal", 6, 8),
    Sketcher.Constraint("Equal", 10, 12),
    Sketcher.Constraint("DistanceX", 0, 2, 0, 1, Q("1 mm")),
    Sketcher.Constraint("DistanceY", 1, 2, 1, 1, Q("90 mm")),
    Sketcher.Constraint("DistanceY", -1, 1, 0, 2, Q("45 mm")),
    Sketcher.Constraint("DistanceX", 3, 2, 4, 2, Q("4 mm")),
    Sketcher.Constraint("DistanceX", 11, 2, 12, 2, Q("4 mm")),
    Sketcher.Constraint("DistanceX", -1, 1, 0, 2, Q("6.5 mm")),
    Sketcher.Constraint("DistanceX", -1, 1, 8, 2, Q("17.2 mm")),
])
sketch9.setExpression("Constraints[41]", "Params.sketch9_width")
sketch9.setExpression("Constraints[42]", "Params.sketch9_height")
pocket7 = doc.addObject("PartDesign::Pocket", "Pocket006")
body.addObject(pocket7)
pocket7.Profile = sketch9
pocket7.setExpression("Length", "Params.pocket7_length")

# Sketch on YZ plane
sketch10 = doc.addObject("Sketcher::SketchObject", "Sketch009")
body.addObject(sketch10)
sketch10.AttachmentSupport = (doc.YZ_Plane, [""])
sketch10.MapMode = "FlatFace"
sketch10.AttachmentOffset = App.Placement(App.Vector(0, 0, -52.4), App.Rotation())
add_polygon(sketch10, [(7.5, 45), (6.5, 45), (6.5, -45), (7.5, -45)])  # lines 0-3
add_polygon(sketch10, [(12.5, 45), (11.5, 45), (11.5, -45), (12.5, -45)])  # lines 4-7
add_polygon(sketch10, [(18.2, 45), (17.2, 45), (17.2, -45), (18.2, -45)])  # lines 8-11
add_polygon(sketch10, [(23.2, 45), (22.2, 45), (22.2, -45), (23.2, -45)])  # lines 12-15
sketch10.addConstraint([
    Sketcher.Constraint("Horizontal", 0),
    Sketcher.Constraint("Vertical", 1),
    Sketcher.Constraint("Horizontal", 2),
    Sketcher.Constraint("Vertical", 3),
    Sketcher.Constraint("Horizontal", 4),
    Sketcher.Constraint("Vertical", 5),
    Sketcher.Constraint("Horizontal", 6),
    Sketcher.Constraint("Vertical", 7),
    Sketcher.Constraint("Horizontal", 8),
    Sketcher.Constraint("Vertical", 9),
    Sketcher.Constraint("Horizontal", 10),
    Sketcher.Constraint("Vertical", 11),
    Sketcher.Constraint("Horizontal", 12),
    Sketcher.Constraint("Vertical", 13),
    Sketcher.Constraint("Horizontal", 14),
    Sketcher.Constraint("Vertical", 15),
    Sketcher.Constraint("Horizontal", 3, 2, 4, 2),
    Sketcher.Constraint("Horizontal", 2, 2, 5, 2),
    Sketcher.Constraint("Horizontal", 7, 2, 8, 2),
    Sketcher.Constraint("Horizontal", 6, 2, 9, 2),
    Sketcher.Constraint("Horizontal", 11, 2, 12, 2),
    Sketcher.Constraint("Horizontal", 10, 2, 13, 2),
    Sketcher.Constraint("Equal", 2, 4),
    Sketcher.Constraint("Equal", 6, 8),
    Sketcher.Constraint("Equal", 10, 12),
    Sketcher.Constraint("DistanceX", 0, 2, 0, 1, Q("1 mm")),
    Sketcher.Constraint("DistanceY", 1, 2, 1, 1, Q("90 mm")),
    Sketcher.Constraint("DistanceY", -1, 1, 0, 2, Q("45 mm")),
    Sketcher.Constraint("DistanceX", 3, 2, 4, 2, Q("4 mm")),
    Sketcher.Constraint("DistanceX", 11, 2, 12, 2, Q("4 mm")),
    Sketcher.Constraint("DistanceX", -1, 1, 0, 2, Q("6.5 mm")),
    Sketcher.Constraint("DistanceX", -1, 1, 8, 2, Q("17.2 mm")),
])
sketch10.setExpression("Constraints[41]", "Params.sketch10_width")
sketch10.setExpression("Constraints[42]", "Params.sketch10_height")
pocket8 = doc.addObject("PartDesign::Pocket", "Pocket007")
body.addObject(pocket8)
pocket8.Profile = sketch10
pocket8.setExpression("Length", "Params.pocket8_length")
pocket8.Reversed = True

doc.recompute()
